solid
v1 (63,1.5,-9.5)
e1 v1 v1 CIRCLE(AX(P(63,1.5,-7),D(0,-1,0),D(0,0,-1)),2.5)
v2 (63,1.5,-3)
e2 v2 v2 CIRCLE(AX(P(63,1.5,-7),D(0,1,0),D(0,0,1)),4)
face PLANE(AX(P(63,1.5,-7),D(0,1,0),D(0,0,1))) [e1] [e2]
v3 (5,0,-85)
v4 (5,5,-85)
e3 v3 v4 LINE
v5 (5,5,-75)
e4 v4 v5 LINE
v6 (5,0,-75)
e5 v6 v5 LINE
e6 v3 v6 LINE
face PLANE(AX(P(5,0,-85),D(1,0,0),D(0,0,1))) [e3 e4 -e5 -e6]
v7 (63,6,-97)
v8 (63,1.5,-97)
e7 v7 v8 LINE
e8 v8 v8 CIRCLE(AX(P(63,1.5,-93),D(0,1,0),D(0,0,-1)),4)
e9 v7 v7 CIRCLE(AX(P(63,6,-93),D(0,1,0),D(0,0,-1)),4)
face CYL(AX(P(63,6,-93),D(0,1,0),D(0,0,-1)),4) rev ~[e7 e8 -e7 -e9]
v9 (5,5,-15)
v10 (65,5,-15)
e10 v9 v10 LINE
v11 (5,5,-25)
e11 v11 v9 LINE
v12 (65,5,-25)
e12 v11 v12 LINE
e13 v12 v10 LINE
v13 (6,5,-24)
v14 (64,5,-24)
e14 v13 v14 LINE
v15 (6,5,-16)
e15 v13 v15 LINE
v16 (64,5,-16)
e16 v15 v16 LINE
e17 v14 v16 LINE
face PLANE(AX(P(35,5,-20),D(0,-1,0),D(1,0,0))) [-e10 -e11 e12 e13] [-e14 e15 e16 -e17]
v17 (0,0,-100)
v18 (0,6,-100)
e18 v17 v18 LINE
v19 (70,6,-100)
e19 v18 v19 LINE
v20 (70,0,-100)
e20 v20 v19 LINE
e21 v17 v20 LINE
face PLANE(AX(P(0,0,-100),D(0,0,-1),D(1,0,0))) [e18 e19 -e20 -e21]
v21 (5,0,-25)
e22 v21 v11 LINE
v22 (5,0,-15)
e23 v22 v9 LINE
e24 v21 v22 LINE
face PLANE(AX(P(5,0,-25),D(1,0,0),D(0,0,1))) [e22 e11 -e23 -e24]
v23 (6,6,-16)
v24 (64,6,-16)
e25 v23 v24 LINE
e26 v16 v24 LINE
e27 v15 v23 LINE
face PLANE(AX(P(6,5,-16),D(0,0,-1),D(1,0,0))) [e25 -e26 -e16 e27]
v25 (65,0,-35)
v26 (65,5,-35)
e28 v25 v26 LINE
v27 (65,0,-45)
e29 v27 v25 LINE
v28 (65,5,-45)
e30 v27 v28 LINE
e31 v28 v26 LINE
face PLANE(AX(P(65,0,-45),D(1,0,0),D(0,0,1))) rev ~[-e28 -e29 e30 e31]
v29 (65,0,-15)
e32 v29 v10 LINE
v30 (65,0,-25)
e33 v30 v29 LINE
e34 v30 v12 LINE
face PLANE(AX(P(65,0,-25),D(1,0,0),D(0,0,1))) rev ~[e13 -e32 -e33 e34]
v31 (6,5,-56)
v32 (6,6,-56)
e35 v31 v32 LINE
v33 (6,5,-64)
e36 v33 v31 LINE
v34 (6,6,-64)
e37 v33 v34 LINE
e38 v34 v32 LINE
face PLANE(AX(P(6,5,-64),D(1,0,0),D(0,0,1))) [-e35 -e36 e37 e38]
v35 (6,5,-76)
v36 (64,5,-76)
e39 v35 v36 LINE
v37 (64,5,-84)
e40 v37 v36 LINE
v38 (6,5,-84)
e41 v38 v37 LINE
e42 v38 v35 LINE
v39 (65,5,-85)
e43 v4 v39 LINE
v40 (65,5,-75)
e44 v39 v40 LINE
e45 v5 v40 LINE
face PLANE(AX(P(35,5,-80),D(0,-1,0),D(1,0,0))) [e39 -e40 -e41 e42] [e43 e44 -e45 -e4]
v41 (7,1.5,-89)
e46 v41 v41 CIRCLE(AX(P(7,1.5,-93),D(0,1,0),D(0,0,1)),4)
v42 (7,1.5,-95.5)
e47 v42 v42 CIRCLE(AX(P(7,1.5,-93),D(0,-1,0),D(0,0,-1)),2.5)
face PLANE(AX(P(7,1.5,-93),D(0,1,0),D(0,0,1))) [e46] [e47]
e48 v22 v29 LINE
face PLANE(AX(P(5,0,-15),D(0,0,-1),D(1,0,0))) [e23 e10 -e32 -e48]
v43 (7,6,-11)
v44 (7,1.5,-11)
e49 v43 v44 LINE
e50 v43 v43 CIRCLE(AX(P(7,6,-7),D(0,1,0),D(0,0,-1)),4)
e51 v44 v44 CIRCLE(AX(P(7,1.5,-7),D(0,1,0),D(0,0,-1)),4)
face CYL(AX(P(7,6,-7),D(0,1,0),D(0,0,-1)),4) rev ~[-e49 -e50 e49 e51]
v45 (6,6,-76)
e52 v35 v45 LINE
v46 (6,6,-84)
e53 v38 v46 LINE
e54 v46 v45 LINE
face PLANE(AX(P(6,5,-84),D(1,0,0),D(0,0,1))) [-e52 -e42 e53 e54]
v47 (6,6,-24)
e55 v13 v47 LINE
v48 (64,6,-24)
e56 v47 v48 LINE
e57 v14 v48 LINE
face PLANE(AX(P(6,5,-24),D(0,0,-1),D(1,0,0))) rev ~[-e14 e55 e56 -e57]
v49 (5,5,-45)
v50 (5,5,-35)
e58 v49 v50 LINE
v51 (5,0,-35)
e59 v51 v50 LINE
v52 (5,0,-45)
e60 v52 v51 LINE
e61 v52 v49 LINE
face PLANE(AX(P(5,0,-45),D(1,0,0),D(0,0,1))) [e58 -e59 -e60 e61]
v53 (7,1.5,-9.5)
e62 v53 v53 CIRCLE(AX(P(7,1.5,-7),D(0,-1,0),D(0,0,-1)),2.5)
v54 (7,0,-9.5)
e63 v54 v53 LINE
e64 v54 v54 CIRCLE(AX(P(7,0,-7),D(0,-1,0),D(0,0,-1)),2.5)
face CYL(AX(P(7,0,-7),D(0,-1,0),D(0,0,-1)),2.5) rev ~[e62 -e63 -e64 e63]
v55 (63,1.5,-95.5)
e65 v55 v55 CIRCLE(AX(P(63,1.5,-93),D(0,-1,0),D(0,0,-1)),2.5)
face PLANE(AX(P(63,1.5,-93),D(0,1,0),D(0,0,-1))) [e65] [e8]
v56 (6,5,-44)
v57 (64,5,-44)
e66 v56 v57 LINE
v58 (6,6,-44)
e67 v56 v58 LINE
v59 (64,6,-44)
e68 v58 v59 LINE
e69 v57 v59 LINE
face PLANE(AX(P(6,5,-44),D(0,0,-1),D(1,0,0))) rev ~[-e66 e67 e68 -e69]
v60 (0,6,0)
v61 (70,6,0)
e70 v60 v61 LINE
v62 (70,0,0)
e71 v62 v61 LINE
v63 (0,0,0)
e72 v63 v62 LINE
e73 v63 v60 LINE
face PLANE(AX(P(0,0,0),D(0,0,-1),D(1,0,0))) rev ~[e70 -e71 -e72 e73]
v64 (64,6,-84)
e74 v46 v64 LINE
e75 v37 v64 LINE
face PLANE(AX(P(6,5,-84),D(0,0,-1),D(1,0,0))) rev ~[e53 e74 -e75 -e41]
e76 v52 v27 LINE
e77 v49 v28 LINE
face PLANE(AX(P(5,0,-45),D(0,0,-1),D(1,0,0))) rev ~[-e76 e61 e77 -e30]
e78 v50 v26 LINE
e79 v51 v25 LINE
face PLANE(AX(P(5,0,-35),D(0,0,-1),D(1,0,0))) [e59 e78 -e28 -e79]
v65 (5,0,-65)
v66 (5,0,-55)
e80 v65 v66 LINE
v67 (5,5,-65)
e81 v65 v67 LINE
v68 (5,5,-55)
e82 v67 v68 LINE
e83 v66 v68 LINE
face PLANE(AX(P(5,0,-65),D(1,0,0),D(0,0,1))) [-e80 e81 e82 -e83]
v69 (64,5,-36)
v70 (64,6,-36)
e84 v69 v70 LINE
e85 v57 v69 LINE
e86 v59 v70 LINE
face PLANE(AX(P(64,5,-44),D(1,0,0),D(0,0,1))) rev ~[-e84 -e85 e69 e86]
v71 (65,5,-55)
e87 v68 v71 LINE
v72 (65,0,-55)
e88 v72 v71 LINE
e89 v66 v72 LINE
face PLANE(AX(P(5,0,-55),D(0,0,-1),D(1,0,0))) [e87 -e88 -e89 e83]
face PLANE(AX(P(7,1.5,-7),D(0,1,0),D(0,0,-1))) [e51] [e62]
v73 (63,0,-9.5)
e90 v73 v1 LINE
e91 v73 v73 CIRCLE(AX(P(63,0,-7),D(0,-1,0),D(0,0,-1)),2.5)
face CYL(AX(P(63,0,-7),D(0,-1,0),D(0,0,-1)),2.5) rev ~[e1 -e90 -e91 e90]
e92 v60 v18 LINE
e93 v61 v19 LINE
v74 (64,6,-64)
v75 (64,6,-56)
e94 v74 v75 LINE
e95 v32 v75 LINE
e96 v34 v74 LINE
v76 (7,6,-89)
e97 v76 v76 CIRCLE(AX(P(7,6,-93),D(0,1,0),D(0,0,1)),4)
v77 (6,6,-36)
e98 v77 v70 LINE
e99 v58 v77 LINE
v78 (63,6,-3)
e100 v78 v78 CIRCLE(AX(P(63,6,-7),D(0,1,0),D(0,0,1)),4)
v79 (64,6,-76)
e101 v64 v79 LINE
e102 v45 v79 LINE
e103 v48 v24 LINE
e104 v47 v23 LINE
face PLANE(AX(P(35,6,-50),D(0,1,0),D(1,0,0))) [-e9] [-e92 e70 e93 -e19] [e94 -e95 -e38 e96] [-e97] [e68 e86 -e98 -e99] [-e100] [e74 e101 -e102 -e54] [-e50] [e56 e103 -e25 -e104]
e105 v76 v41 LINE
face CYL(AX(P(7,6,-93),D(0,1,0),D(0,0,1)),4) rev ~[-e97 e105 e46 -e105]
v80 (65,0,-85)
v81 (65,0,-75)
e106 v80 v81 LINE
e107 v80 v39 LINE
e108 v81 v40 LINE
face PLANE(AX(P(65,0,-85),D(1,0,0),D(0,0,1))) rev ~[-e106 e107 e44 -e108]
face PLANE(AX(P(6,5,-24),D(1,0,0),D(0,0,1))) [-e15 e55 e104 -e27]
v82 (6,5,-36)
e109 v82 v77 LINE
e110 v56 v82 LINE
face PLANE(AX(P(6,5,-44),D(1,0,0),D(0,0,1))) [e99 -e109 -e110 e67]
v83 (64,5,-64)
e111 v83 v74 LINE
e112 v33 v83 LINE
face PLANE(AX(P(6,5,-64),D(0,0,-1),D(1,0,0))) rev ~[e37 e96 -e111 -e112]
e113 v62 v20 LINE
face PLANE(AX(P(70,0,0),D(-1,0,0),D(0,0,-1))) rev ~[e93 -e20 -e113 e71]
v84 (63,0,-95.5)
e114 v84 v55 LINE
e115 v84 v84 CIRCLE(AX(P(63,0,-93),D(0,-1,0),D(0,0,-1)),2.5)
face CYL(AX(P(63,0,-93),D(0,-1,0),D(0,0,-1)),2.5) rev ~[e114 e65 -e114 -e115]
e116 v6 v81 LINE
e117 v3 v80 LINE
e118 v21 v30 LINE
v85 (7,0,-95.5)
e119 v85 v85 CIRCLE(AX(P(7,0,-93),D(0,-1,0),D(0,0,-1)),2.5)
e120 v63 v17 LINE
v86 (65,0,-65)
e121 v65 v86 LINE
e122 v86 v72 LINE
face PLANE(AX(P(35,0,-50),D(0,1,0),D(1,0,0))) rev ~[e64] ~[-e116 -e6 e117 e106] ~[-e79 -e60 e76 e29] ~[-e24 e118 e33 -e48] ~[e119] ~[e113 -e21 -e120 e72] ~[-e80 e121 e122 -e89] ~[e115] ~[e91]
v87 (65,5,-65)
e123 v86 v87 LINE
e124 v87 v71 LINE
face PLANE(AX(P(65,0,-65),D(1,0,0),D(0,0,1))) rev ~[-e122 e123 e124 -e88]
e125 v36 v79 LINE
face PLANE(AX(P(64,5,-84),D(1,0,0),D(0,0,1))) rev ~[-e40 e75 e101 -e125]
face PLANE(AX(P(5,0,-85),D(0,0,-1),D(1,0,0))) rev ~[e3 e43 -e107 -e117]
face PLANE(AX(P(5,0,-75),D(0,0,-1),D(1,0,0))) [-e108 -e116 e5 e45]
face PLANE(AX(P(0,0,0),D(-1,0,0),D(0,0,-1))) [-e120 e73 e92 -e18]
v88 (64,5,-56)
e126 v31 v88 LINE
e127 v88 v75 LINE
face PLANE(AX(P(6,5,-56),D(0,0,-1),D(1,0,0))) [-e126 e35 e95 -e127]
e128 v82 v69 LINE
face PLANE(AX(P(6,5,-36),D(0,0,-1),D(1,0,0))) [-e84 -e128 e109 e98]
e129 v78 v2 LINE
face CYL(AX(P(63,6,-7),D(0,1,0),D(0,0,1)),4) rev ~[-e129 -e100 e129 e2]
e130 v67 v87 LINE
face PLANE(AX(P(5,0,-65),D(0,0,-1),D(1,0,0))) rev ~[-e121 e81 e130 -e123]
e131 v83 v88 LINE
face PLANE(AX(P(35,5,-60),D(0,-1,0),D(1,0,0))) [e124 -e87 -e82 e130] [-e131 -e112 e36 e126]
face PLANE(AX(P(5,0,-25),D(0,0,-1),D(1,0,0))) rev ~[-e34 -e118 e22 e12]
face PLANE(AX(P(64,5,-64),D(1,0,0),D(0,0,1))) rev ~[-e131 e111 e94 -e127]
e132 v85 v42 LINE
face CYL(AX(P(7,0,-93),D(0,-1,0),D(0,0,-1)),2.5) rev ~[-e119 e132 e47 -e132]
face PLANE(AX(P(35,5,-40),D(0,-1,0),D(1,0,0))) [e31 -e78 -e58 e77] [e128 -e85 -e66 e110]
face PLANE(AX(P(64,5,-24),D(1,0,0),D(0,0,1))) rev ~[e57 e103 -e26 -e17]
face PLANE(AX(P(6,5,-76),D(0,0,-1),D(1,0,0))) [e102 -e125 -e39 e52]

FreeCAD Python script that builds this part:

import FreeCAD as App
import Part
import Sketcher

V = App.Vector

doc = App.newDocument("Part")
body = doc.addObject("PartDesign::Body", "Body")

# Sketch on XZ plane
sketch1 = body.newObject("Sketcher::SketchObject", "Sketch")
sketch1.AttachmentSupport = (doc.getObject("XZ_Plane"), [""])
sketch1.MapMode = "FlatFace"
sketch1.addGeometry(Part.LineSegment(V(0, -100, 0), V(0, 0, 0)), False)
sketch1.addGeometry(Part.LineSegment(V(0, 0, 0), V(70, 0, 0)), False)
sketch1.addGeometry(Part.LineSegment(V(70, 0, 0), V(70, -100, 0)), False)
sketch1.addGeometry(Part.LineSegment(V(70, -100, 0), V(0, -100, 0)), False)
sketch1.addConstraint(Sketcher.Constraint("Coincident", 0, 2, 1, 1))
sketch1.addConstraint(Sketcher.Constraint("Coincident", 1, 2, 2, 1))
sketch1.addConstraint(Sketcher.Constraint("Coincident", 2, 2, 3, 1))
sketch1.addConstraint(Sketcher.Constraint("Coincident", 3, 2, 0, 1))
sketch1.addConstraint(Sketcher.Constraint("Vertical", 0))
sketch1.addConstraint(Sketcher.Constraint("Horizontal", 1))
sketch1.addConstraint(Sketcher.Constraint("Vertical", 2))
sketch1.addConstraint(Sketcher.Constraint("Horizontal", 3))
sketch1.addConstraint(Sketcher.Constraint("Coincident", 0, 2, -1, 1))
sketch1.addConstraint(Sketcher.Constraint("DistanceX", 1, 1, 1, 2, 70.0))
sketch1.addConstraint(Sketcher.Constraint("DistanceY", 0, 1, 0, 2, 100.0))
pad1 = body.newObject("PartDesign::Pad", "Pad")
pad1.Profile = sketch1
pad1.Length = 6
pad1.Reversed = True

# Sketch on XZ plane
sketch2 = body.newObject("Sketcher::SketchObject", "Sketch001")
sketch2.AttachmentSupport = (doc.getObject("XZ_Plane"), [""])
sketch2.MapMode = "FlatFace"
sketch2.addGeometry(Part.LineSegment(V(5, -15, 0), V(5, -25, 0)), False)
sketch2.addGeometry(Part.LineSegment(V(5, -25, 0), V(65, -25, 0)), False)
sketch2.addGeometry(Part.LineSegment(V(65, -25, 0), V(65, -15, 0)), False)
sketch2.addGeometry(Part.LineSegment(V(65, -15, 0), V(5, -15, 0)), False)
sketch2.addGeometry(Part.LineSegment(V(5, -35, 0), V(5, -45, 0)), False)
sketch2.addGeometry(Part.LineSegment(V(5, -45, 0), V(65, -45, 0)), False)
sketch2.addGeometry(Part.LineSegment(V(65, -45, 0), V(65, -35, 0)), False)
sketch2.addGeometry(Part.LineSegment(V(65, -35, 0), V(5, -35, 0)), False)
sketch2.addGeometry(Part.LineSegment(V(5, -55, 0), V(5, -65, 0)), False)
sketch2.addGeometry(Part.LineSegment(V(5, -65, 0), V(65, -65, 0)), False)
sketch2.addGeometry(Part.LineSegment(V(65, -65, 0), V(65, -55, 0)), False)
sketch2.addGeometry(Part.LineSegment(V(65, -55, 0), V(5, -55, 0)), False)
sketch2.addGeometry(Part.LineSegment(V(5, -75, 0), V(5, -85, 0)), False)
sketch2.addGeometry(Part.LineSegment(V(5, -85, 0), V(65, -85, 0)), False)
sketch2.addGeometry(Part.LineSegment(V(65, -85, 0), V(65, -75, 0)), False)
sketch2.addGeometry(Part.LineSegment(V(65, -75, 0), V(5, -75, 0)), False)
sketch2.addConstraint(Sketcher.Constraint("Coincident", 0, 2, 1, 1))
sketch2.addConstraint(Sketcher.Constraint("Coincident", 1, 2, 2, 1))
sketch2.addConstraint(Sketcher.Constraint("Coincident", 2, 2, 3, 1))
sketch2.addConstraint(Sketcher.Constraint("Coincident", 3, 2, 0, 1))
sketch2.addConstraint(Sketcher.Constraint("Coincident", 4, 2, 5, 1))
sketch2.addConstraint(Sketcher.Constraint("Coincident", 5, 2, 6, 1))
sketch2.addConstraint(Sketcher.Constraint("Coincident", 6, 2, 7, 1))
sketch2.addConstraint(Sketcher.Constraint("Coincident", 7, 2, 4, 1))
sketch2.addConstraint(Sketcher.Constraint("Coincident", 8, 2, 9, 1))
sketch2.addConstraint(Sketcher.Constraint("Coincident", 9, 2, 10, 1))
sketch2.addConstraint(Sketcher.Constraint("Coincident", 10, 2, 11, 1))
sketch2.addConstraint(Sketcher.Constraint("Coincident", 11, 2, 8, 1))
sketch2.addConstraint(Sketcher.Constraint("Coincident", 12, 2, 13, 1))
sketch2.addConstraint(Sketcher.Constraint("Coincident", 13, 2, 14, 1))
sketch2.addConstraint(Sketcher.Constraint("Coincident", 14, 2, 15, 1))
sketch2.addConstraint(Sketcher.Constraint("Coincident", 15, 2, 12, 1))
sketch2.addConstraint(Sketcher.Constraint("Vertical", 0))
sketch2.addConstraint(Sketcher.Constraint("Horizontal", 1))
sketch2.addConstraint(Sketcher.Constraint("Vertical", 2))
sketch2.addConstraint(Sketcher.Constraint("Horizontal", 3))
sketch2.addConstraint(Sketcher.Constraint("Vertical", 4))
sketch2.addConstraint(Sketcher.Constraint("Horizontal", 5))
sketch2.addConstraint(Sketcher.Constraint("Vertical", 6))
sketch2.addConstraint(Sketcher.Constraint("Horizontal", 7))
sketch2.addConstraint(Sketcher.Constraint("Vertical", 8))
sketch2.addConstraint(Sketcher.Constraint("Horizontal", 9))
sketch2.addConstraint(Sketcher.Constraint("Vertical", 10))
sketch2.addConstraint(Sketcher.Constraint("Horizontal", 11))
sketch2.addConstraint(Sketcher.Constraint("Vertical", 12))
sketch2.addConstraint(Sketcher.Constraint("Horizontal", 13))
sketch2.addConstraint(Sketcher.Constraint("Vertical", 14))
sketch2.addConstraint(Sketcher.Constraint("Horizontal", 15))
sketch2.addConstraint(Sketcher.Constraint("Vertical", 3, 2, 4, 2))
sketch2.addConstraint(Sketcher.Constraint("Vertical", 2, 2, 5, 2))
sketch2.addConstraint(Sketcher.Constraint("Vertical", 7, 2, 8, 2))
sketch2.addConstraint(Sketcher.Constraint("Vertical", 6, 2, 9, 2))
sketch2.addConstraint(Sketcher.Constraint("Vertical", 11, 2, 12, 2))
sketch2.addConstraint(Sketcher.Constraint("Vertical", 10, 2, 13, 2))
sketch2.addConstraint(Sketcher.Constraint("Equal", 2, 4))
sketch2.addConstraint(Sketcher.Constraint("Equal", 6, 8))
sketch2.addConstraint(Sketcher.Constraint("Equal", 10, 12))
sketch2.addConstraint(Sketcher.Constraint("DistanceX", 1, 1, 1, 2, 60.0))
sketch2.addConstraint(Sketcher.Constraint("DistanceY", 0, 2, 0, 1, 10.0))
sketch2.addConstraint(Sketcher.Constraint("DistanceX", -1, 1, 0, 2, 5.0))
sketch2.addConstraint(Sketcher.Constraint("DistanceY", 0, 2, -1, 1, 25.0))
sketch2.addConstraint(Sketcher.Constraint("DistanceY", 4, 2, -1, 1, 45.0))
sketch2.addConstraint(Sketcher.Constraint("DistanceY", 8, 2, -1, 1, 65.0))
sketch2.addConstraint(Sketcher.Constraint("DistanceY", 12, 2, -1, 1, 85.0))
pocket1 = body.newObject("PartDesign::Pocket", "Pocket")
pocket1.Profile = sketch2
pocket1.Length = 5

# Sketch on XZ plane
sketch3 = body.newObject("Sketcher::SketchObject", "Sketch002")
sketch3.AttachmentSupport = (doc.getObject("XZ_Plane"), [""])
sketch3.MapMode = "FlatFace"
sketch3.AttachmentOffset = App.Placement(V(0, 0, -5), App.Rotation())
sketch3.addGeometry(Part.LineSegment(V(6, -16, 0), V(6, -24, 0)), False)
sketch3.addGeometry(Part.LineSegment(V(6, -24, 0), V(64, -24, 0)), False)
sketch3.addGeometry(Part.LineSegment(V(64, -24, 0), V(64, -16, 0)), False)
sketch3.addGeometry(Part.LineSegment(V(64, -16, 0), V(6, -16, 0)), False)
sketch3.addGeometry(Part.LineSegment(V(6, -36, 0), V(6, -44, 0)), False)
sketch3.addGeometry(Part.LineSegment(V(6, -44, 0), V(64, -44, 0)), False)
sketch3.addGeometry(Part.LineSegment(V(64, -44, 0), V(64, -36, 0)), False)
sketch3.addGeometry(Part.LineSegment(V(64, -36, 0), V(6, -36, 0)), False)
sketch3.addGeometry(Part.LineSegment(V(6, -56, 0), V(6, -64, 0)), False)
sketch3.addGeometry(Part.LineSegment(V(6, -64, 0), V(64, -64, 0)), False)
sketch3.addGeometry(Part.LineSegment(V(64, -64, 0), V(64, -56, 0)), False)
sketch3.addGeometry(Part.LineSegment(V(64, -56, 0), V(6, -56, 0)), False)
sketch3.addGeometry(Part.LineSegment(V(6, -76, 0), V(6, -84, 0)), False)
sketch3.addGeometry(Part.LineSegment(V(6, -84, 0), V(64, -84, 0)), False)
sketch3.addGeometry(Part.LineSegment(V(64, -84, 0), V(64, -76, 0)), False)
sketch3.addGeometry(Part.LineSegment(V(64, -76, 0), V(6, -76, 0)), False)
sketch3.addConstraint(Sketcher.Constraint("Coincident", 0, 2, 1, 1))
sketch3.addConstraint(Sketcher.Constraint("Coincident", 1, 2, 2, 1))
sketch3.addConstraint(Sketcher.Constraint("Coincident", 2, 2, 3, 1))
sketch3.addConstraint(Sketcher.Constraint("Coincident", 3, 2, 0, 1))
sketch3.addConstraint(Sketcher.Constraint("Coincident", 4, 2, 5, 1))
sketch3.addConstraint(Sketcher.Constraint("Coincident", 5, 2, 6, 1))
sketch3.addConstraint(Sketcher.Constraint("Coincident", 6, 2, 7, 1))
sketch3.addConstraint(Sketcher.Constraint("Coincident", 7, 2, 4, 1))
sketch3.addConstraint(Sketcher.Constraint("Coincident", 8, 2, 9, 1))
sketch3.addConstraint(Sketcher.Constraint("Coincident", 9, 2, 10, 1))
sketch3.addConstraint(Sketcher.Constraint("Coincident", 10, 2, 11, 1))
sketch3.addConstraint(Sketcher.Constraint("Coincident", 11, 2, 8, 1))
sketch3.addConstraint(Sketcher.Constraint("Coincident", 12, 2, 13, 1))
sketch3.addConstraint(Sketcher.Constraint("Coincident", 13, 2, 14, 1))
sketch3.addConstraint(Sketcher.Constraint("Coincident", 14, 2, 15, 1))
sketch3.addConstraint(Sketcher.Constraint("Coincident", 15, 2, 12, 1))
sketch3.addConstraint(Sketcher.Constraint("Vertical", 0))
sketch3.addConstraint(Sketcher.Constraint("Horizontal", 1))
sketch3.addConstraint(Sketcher.Constraint("Vertical", 2))
sketch3.addConstraint(Sketcher.Constraint("Horizontal", 3))
sketch3.addConstraint(Sketcher.Constraint("Vertical", 4))
sketch3.addConstraint(Sketcher.Constraint("Horizontal", 5))
sketch3.addConstraint(Sketcher.Constraint("Vertical", 6))
sketch3.addConstraint(Sketcher.Constraint("Horizontal", 7))
sketch3.addConstraint(Sketcher.Constraint("Vertical", 8))
sketch3.addConstraint(Sketcher.Constraint("Horizontal", 9))
sketch3.addConstraint(Sketcher.Constraint("Vertical", 10))
sketch3.addConstraint(Sketcher.Constraint("Horizontal", 11))
sketch3.addConstraint(Sketcher.Constraint("Vertical", 12))
sketch3.addConstraint(Sketcher.Constraint("Horizontal", 13))
sketch3.addConstraint(Sketcher.Constraint("Vertical", 14))
sketch3.addConstraint(Sketcher.Constraint("Horizontal", 15))
sketch3.addConstraint(Sketcher.Constraint("Vertical", 3, 2, 4, 2))
sketch3.addConstraint(Sketcher.Constraint("Vertical", 2, 2, 5, 2))
sketch3.addConstraint(Sketcher.Constraint("Vertical", 7, 2, 8, 2))
sketch3.addConstraint(Sketcher.Constraint("Vertical", 6, 2, 9, 2))
sketch3.addConstraint(Sketcher.Constraint("Vertical", 11, 2, 12, 2))
sketch3.addConstraint(Sketcher.Constraint("Vertical", 10, 2, 13, 2))
sketch3.addConstraint(Sketcher.Constraint("Equal", 2, 4))
sketch3.addConstraint(Sketcher.Constraint("Equal", 6, 8))
sketch3.addConstraint(Sketcher.Constraint("Equal", 10, 12))
sketch3.addConstraint(Sketcher.Constraint("DistanceX", 1, 1, 1, 2, 58.0))
sketch3.addConstraint(Sketcher.Constraint("DistanceY", 0, 2, 0, 1, 8.0))
sketch3.addConstraint(Sketcher.Constraint("DistanceX", -1, 1, 0, 2, 6.0))
sketch3.addConstraint(Sketcher.Constraint("DistanceY", 0, 2, -1, 1, 24.0))
sketch3.addConstraint(Sketcher.Constraint("DistanceY", 4, 2, -1, 1, 44.0))
sketch3.addConstraint(Sketcher.Constraint("DistanceY", 8, 2, -1, 1, 64.0))
sketch3.addConstraint(Sketcher.Constraint("DistanceY", 12, 2, -1, 1, 84.0))
pocket2 = body.newObject("PartDesign::Pocket", "Pocket001")
pocket2.Profile = sketch3
pocket2.Length = 1

# Sketch on XZ plane
sketch4 = body.newObject("Sketcher::SketchObject", "Sketch003")
sketch4.AttachmentSupport = (doc.getObject("XZ_Plane"), [""])
sketch4.MapMode = "FlatFace"
sketch4.addGeometry(Part.Circle(V(63, -7, 0), V(0, 0, 1), 2.5), False)
sketch4.addGeometry(Part.Circle(V(7, -7, 0), V(0, 0, 1), 2.5), False)
sketch4.addGeometry(Part.Circle(V(63, -93, 0), V(0, 0, 1), 2.5), False)
sketch4.addGeometry(Part.Circle(V(7, -93, 0), V(0, 0, 1), 2.5), False)
sketch4.addConstraint(Sketcher.Constraint("Equal", 0, 1))
sketch4.addConstraint(Sketcher.Constraint("Equal", 1, 2))
sketch4.addConstraint(Sketcher.Constraint("Equal", 2, 3))
sketch4.addConstraint(Sketcher.Constraint("Horizontal", 0, 3, 1, 3))
sketch4.addConstraint(Sketcher.Constraint("Horizontal", 2, 3, 3, 3))
sketch4.addConstraint(Sketcher.Constraint("Vertical", 0, 3, 2, 3))
sketch4.addConstraint(Sketcher.Constraint("Vertical", 1, 3, 3, 3))
sketch4.addConstraint(Sketcher.Constraint("Diameter", 0, 5.0))
sketch4.addConstraint(Sketcher.Constraint("DistanceX", -1, 1, 0, 3, 63.0))
sketch4.addConstraint(Sketcher.Constraint("DistanceY", 0, 3, -1, 1, 7.0))
sketch4.addConstraint(Sketcher.Constraint("DistanceX", -1, 1, 1, 3, 7.0))
sketch4.addConstraint(Sketcher.Constraint("DistanceY", 2, 3, -1, 1, 93.0))
pocket3 = body.newObject("PartDesign::Pocket", "Pocket002")
pocket3.Profile = sketch4
pocket3.Length = 10

# Sketch on XZ plane
sketch5 = body.newObject("Sketcher::SketchObject", "Sketch004")
sketch5.AttachmentSupport = (doc.getObject("XZ_Plane"), [""])
sketch5.MapMode = "FlatFace"
sketch5.AttachmentOffset = App.Placement(V(0, 0, -6), App.Rotation())
sketch5.addGeometry(Part.Circle(V(7, -93, 0), V(0, 0, 1), 4), False)
sketch5.addGeometry(Part.Circle(V(63, -93, 0), V(0, 0, 1), 4), False)
sketch5.addGeometry(Part.Circle(V(63, -7, 0), V(0, 0, 1), 4), False)
sketch5.addGeometry(Part.Circle(V(7, -7, 0), V(0, 0, 1), 4), False)
sketch5.addConstraint(Sketcher.Constraint("Equal", 0, 1))
sketch5.addConstraint(Sketcher.Constraint("Equal", 1, 2))
sketch5.addConstraint(Sketcher.Constraint("Equal", 2, 3))
sketch5.addConstraint(Sketcher.Constraint("Horizontal", 0, 3, 1, 3))
sketch5.addConstraint(Sketcher.Constraint("Horizontal", 2, 3, 3, 3))
sketch5.addConstraint(Sketcher.Constraint("Vertical", 1, 3, 2, 3))
sketch5.addConstraint(Sketcher.Constraint("Vertical", 0, 3, 3, 3))
sketch5.addConstraint(Sketcher.Constraint("Diameter", 0, 8.0))
sketch5.addConstraint(Sketcher.Constraint("DistanceX", -1, 1, 0, 3, 7.0))
sketch5.addConstraint(Sketcher.Constraint("DistanceY", 0, 3, -1, 1, 93.0))
sketch5.addConstraint(Sketcher.Constraint("DistanceX", -1, 1, 1, 3, 63.0))
sketch5.addConstraint(Sketcher.Constraint("DistanceY", 2, 3, -1, 1, 7.0))
pocket4 = body.newObject("PartDesign::Pocket", "Pocket003")
pocket4.Profile = sketch5
pocket4.Length = 4.5
pocket4.Reversed = True

doc.recompute()
